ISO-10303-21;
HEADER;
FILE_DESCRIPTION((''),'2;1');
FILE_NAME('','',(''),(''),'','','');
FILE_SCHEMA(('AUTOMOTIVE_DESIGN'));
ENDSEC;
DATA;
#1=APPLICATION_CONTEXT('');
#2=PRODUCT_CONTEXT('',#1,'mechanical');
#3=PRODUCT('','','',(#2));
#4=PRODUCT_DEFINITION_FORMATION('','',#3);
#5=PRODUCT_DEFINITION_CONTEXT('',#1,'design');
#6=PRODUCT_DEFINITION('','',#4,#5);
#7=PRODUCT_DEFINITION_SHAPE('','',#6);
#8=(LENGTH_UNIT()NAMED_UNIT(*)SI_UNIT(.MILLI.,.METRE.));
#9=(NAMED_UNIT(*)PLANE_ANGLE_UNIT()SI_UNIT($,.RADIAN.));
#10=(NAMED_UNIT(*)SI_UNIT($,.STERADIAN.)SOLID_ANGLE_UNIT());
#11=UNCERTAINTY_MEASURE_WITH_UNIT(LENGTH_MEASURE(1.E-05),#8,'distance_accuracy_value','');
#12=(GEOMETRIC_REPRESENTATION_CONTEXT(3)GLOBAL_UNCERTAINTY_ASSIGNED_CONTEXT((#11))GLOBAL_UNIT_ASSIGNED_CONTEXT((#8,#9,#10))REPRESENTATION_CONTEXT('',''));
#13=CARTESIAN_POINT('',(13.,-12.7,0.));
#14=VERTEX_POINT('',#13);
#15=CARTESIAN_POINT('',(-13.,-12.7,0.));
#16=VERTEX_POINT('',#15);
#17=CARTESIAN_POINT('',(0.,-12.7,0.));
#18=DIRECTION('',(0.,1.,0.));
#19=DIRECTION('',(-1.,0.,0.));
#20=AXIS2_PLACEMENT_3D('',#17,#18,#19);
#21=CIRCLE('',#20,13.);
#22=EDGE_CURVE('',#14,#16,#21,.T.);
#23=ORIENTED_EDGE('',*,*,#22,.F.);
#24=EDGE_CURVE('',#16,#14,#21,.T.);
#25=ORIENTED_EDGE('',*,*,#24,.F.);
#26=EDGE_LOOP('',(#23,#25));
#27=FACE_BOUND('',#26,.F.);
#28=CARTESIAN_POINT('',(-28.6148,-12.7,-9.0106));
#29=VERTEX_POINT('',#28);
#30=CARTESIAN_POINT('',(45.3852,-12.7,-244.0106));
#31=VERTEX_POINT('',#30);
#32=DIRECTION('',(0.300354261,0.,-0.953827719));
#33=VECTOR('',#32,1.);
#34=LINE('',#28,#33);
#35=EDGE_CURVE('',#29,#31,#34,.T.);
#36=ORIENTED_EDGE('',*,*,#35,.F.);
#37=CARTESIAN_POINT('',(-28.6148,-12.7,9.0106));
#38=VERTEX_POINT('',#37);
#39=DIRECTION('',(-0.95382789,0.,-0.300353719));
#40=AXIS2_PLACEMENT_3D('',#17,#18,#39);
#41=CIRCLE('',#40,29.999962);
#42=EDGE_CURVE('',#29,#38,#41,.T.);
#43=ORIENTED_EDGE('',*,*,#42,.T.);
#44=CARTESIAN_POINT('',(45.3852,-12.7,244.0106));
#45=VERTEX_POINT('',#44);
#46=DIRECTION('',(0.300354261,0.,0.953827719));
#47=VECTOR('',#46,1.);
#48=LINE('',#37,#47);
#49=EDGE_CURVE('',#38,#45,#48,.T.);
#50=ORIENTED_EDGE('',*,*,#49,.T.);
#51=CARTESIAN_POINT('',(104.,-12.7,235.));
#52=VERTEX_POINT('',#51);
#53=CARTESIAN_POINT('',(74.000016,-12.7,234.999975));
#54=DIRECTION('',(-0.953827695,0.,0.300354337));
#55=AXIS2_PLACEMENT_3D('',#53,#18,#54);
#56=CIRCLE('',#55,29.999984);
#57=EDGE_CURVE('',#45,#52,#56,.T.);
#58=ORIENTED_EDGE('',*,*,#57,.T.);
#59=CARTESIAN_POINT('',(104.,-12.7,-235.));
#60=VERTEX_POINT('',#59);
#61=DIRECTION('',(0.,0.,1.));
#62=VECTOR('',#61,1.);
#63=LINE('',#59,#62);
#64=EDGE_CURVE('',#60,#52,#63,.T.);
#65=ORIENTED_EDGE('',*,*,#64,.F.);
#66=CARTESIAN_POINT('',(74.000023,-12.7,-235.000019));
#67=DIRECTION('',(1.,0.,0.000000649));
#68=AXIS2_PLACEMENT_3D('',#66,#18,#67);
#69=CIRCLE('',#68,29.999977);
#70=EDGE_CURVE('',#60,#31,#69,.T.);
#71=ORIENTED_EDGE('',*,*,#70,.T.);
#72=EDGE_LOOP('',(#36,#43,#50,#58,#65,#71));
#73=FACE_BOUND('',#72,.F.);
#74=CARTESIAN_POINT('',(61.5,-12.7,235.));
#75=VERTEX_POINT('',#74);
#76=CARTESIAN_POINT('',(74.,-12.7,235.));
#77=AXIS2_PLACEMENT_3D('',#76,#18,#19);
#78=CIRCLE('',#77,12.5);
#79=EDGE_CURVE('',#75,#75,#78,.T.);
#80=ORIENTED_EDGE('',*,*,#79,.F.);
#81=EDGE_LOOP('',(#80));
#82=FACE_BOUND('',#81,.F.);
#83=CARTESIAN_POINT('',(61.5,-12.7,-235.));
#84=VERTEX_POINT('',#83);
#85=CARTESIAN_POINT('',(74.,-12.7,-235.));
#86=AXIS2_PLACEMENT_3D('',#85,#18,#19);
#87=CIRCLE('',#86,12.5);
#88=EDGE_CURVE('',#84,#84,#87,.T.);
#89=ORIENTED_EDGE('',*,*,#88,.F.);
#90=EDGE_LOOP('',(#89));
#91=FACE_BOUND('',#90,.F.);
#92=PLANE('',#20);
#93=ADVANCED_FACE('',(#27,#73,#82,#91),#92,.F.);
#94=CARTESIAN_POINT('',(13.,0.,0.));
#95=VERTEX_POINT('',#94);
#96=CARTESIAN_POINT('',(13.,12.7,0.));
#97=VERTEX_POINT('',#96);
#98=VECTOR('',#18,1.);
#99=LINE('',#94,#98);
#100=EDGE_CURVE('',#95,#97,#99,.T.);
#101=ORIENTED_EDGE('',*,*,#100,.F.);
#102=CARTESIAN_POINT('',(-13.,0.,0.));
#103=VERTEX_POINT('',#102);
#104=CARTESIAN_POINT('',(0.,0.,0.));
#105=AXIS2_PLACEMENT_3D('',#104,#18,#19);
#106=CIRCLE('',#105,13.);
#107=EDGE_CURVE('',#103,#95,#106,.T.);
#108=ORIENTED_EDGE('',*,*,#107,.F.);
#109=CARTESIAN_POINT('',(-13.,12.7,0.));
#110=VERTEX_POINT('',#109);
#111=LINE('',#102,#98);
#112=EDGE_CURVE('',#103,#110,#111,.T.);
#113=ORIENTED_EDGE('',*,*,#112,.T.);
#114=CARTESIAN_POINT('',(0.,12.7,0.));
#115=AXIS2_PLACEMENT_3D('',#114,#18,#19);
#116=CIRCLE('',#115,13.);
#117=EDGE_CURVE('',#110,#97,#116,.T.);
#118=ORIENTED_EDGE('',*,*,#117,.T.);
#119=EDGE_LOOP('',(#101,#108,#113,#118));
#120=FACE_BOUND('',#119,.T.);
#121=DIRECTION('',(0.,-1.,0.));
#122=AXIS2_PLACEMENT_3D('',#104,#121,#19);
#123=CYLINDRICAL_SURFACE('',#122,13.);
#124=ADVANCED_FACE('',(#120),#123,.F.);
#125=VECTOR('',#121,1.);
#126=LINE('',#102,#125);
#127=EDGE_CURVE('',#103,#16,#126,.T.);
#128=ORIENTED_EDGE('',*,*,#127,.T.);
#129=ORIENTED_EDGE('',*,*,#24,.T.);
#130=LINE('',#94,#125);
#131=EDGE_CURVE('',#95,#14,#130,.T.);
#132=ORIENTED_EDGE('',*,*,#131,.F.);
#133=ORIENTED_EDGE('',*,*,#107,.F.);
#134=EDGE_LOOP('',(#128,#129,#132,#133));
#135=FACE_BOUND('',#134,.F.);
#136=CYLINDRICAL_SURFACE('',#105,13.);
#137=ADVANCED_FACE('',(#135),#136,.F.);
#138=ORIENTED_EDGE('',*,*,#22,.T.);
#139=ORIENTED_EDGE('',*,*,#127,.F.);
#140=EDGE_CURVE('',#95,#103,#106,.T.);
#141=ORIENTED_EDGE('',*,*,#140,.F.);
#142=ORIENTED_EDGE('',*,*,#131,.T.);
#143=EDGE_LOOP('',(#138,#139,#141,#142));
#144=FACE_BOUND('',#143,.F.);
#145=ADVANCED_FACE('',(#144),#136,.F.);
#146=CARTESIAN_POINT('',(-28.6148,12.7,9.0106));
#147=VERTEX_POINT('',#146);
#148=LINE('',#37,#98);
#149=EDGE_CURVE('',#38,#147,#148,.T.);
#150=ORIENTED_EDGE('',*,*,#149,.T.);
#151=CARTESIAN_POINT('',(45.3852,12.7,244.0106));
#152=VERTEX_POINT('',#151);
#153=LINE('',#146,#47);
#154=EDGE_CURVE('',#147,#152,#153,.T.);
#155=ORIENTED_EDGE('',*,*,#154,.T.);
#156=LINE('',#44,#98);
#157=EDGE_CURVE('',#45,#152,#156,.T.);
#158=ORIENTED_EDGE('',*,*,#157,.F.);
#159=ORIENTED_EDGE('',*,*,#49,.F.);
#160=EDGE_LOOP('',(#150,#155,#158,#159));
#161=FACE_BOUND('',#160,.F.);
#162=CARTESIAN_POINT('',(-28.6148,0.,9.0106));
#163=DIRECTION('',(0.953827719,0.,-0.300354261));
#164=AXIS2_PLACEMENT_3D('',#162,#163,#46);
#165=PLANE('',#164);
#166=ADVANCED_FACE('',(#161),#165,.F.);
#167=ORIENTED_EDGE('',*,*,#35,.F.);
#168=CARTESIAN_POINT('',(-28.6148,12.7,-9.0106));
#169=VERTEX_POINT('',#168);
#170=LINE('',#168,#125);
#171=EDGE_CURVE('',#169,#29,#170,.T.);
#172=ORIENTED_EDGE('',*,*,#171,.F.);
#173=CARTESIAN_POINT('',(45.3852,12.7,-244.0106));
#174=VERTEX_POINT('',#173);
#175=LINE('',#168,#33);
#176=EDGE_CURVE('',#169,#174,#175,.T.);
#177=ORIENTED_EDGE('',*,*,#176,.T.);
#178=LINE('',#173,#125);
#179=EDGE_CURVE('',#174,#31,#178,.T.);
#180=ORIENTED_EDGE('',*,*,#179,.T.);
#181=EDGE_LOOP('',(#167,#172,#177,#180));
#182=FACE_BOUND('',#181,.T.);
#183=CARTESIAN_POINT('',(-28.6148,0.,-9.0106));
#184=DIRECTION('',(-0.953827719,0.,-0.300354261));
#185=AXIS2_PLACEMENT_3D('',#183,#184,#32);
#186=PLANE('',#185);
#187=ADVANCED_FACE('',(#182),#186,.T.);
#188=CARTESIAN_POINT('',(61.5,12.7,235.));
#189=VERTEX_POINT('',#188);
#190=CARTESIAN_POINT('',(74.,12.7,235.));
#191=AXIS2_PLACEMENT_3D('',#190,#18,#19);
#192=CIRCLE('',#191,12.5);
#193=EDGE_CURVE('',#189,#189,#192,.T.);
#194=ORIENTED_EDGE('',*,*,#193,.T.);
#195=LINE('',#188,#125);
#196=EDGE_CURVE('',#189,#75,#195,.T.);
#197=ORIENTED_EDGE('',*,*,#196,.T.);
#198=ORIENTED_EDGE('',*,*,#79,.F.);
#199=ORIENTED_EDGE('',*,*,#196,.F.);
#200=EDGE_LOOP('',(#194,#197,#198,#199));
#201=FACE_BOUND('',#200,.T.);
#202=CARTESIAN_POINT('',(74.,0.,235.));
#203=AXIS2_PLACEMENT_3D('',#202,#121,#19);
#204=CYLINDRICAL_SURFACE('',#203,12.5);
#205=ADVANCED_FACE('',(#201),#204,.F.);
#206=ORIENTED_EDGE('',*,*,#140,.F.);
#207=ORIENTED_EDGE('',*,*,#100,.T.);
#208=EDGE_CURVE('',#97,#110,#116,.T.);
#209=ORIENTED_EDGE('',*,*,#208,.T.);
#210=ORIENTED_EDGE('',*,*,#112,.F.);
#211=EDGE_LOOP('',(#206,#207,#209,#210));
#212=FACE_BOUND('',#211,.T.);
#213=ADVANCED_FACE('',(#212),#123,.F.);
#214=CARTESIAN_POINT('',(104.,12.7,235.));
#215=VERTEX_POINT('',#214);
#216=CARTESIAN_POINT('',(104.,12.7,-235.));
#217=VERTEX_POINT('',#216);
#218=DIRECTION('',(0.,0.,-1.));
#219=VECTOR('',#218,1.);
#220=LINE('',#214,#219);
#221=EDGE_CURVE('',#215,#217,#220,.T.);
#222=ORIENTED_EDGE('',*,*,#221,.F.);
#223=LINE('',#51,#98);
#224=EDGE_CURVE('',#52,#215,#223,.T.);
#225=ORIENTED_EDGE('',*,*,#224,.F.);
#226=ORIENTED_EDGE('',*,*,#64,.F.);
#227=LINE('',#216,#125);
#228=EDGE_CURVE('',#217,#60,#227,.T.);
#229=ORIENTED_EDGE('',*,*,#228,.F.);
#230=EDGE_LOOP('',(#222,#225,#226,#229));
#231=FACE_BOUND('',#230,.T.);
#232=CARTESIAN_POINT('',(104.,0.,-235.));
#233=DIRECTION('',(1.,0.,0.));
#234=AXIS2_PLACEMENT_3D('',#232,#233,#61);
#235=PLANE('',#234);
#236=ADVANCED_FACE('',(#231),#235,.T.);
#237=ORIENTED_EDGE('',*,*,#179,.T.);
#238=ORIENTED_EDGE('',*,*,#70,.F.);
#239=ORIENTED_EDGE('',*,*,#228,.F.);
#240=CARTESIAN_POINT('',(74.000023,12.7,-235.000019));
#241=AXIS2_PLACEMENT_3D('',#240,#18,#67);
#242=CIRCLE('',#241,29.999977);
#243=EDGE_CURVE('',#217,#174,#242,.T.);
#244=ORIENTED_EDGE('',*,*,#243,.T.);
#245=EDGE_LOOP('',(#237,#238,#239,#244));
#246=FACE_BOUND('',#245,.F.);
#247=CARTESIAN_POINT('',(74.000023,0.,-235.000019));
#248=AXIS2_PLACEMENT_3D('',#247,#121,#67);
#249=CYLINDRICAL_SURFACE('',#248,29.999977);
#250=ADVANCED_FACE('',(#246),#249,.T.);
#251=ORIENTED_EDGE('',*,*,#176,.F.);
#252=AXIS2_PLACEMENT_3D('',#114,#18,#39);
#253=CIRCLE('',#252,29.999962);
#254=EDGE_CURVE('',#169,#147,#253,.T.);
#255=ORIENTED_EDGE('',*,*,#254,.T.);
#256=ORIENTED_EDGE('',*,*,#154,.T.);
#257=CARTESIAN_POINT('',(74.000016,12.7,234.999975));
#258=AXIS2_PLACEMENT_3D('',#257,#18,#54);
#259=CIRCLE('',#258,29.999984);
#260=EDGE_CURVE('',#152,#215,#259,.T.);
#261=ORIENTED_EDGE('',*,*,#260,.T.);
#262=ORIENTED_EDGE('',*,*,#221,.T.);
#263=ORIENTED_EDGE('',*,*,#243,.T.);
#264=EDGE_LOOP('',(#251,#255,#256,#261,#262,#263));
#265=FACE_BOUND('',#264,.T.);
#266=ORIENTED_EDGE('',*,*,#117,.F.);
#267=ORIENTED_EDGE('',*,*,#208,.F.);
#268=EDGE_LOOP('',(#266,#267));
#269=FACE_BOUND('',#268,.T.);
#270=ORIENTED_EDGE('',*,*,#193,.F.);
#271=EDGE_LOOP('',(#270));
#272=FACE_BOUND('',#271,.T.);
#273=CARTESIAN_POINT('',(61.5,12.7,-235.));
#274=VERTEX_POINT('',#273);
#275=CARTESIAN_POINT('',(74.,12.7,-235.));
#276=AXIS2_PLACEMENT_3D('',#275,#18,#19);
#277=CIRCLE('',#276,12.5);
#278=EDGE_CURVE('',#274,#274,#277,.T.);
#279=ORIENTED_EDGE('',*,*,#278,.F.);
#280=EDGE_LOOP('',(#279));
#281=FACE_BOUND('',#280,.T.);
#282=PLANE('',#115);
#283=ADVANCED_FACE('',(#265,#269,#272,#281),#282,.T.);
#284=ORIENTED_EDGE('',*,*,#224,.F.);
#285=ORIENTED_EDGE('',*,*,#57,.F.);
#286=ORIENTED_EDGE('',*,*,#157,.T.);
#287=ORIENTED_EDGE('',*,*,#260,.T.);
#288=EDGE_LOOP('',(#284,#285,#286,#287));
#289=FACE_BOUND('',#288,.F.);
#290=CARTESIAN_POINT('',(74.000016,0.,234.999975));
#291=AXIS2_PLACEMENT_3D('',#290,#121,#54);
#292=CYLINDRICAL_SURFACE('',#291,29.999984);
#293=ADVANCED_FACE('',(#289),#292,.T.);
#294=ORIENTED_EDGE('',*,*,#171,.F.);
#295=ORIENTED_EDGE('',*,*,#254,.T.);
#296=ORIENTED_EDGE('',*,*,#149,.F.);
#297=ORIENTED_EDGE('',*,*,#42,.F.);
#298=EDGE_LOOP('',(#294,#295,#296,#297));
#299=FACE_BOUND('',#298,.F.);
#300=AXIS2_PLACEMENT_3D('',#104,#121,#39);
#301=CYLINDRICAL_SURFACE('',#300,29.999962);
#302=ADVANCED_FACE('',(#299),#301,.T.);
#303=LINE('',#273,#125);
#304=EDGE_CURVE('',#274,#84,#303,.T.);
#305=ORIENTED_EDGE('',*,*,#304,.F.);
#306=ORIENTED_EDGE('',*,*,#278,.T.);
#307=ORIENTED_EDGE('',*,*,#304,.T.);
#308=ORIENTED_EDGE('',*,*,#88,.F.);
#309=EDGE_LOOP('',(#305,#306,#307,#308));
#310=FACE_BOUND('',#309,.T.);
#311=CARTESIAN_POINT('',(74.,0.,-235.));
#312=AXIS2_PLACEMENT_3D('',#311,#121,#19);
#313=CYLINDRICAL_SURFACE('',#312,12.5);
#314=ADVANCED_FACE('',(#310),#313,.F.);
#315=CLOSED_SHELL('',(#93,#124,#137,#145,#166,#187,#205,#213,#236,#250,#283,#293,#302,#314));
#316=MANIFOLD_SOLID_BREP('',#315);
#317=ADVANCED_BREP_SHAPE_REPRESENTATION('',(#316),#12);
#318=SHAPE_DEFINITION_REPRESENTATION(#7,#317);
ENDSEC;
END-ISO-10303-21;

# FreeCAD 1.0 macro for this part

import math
import FreeCAD as App
import Part
import Sketcher

V = App.Vector

doc = App.newDocument("Part")
body = doc.addObject("PartDesign::Body", "Body")

# Sketch on XZ plane
sketch1 = body.newObject("Sketcher::SketchObject", "Sketch")
sketch1.AttachmentSupport = (doc.getObject("XZ_Plane"), [""])
sketch1.MapMode = "FlatFace"
sketch1.addGeometry([
    Part.ArcOfCircle(Part.Circle(V(0, 0, 0), V(0, 0, 1), 30), math.radians(163), math.radians(197)),  # 0
    Part.LineSegment(V(-29, 9, 0), V(45, 244, 0)),  # 1
    Part.ArcOfCircle(Part.Circle(V(74, 235, 0), V(0, 0, 1), 30), math.radians(0), math.radians(163)),  # 2
    Part.LineSegment(V(104, 235, 0), V(104, -235, 0)),  # 3
    Part.ArcOfCircle(Part.Circle(V(74, -235, 0), V(0, 0, 1), 30), math.radians(-163), math.radians(0)),  # 4
    Part.LineSegment(V(45, -244, 0), V(-29, -9, 0)),  # 5
    Part.Circle(V(74, -235, 0), V(0, 0, 1), 12),  # 6
    Part.Circle(V(74, 235, 0), V(0, 0, 1), 12),  # 7
    Part.Circle(V(0, 0, 0), V(0, 0, 1), 13),  # 8
], False)
sketch1.addConstraint([
    Sketcher.Constraint("Tangent", 0, 1, 1, 1),
    Sketcher.Constraint("Tangent", 1, 2, 2, 2),
    Sketcher.Constraint("Tangent", 2, 1, 3, 1),
    Sketcher.Constraint("Tangent", 3, 2, 4, 2),
    Sketcher.Constraint("Tangent", 4, 1, 5, 1),
    Sketcher.Constraint("Tangent", 5, 2, 0, 2),
    Sketcher.Constraint("Vertical", 3),
    Sketcher.Constraint("Coincident", 0, 3, -1, 1),
    Sketcher.Constraint("Coincident", 8, 3, -1, 1),
    Sketcher.Constraint("Coincident", 6, 3, 4, 3),
    Sketcher.Constraint("Coincident", 7, 3, 2, 3),
    Sketcher.Constraint("Equal", 0, 2),
    Sketcher.Constraint("Equal", 2, 4),
    Sketcher.Constraint("Equal", 6, 7),
    Sketcher.Constraint("Equal", 1, 5),
    Sketcher.Constraint("Diameter", 6, 25.0),
    Sketcher.Constraint("Diameter", 8, 26.0),
    Sketcher.Constraint("Radius", 0, 30.0),
    Sketcher.Constraint("DistanceY", 3, 2, 3, 1, 470.0),
    Sketcher.Constraint("DistanceX", -1, 1, 2, 3, 74.0),
])
pad1 = body.newObject("PartDesign::Pad", "Pad")
pad1.Profile = sketch1
pad1.Length = 25.4
pad1.Midplane = True

doc.recompute()
